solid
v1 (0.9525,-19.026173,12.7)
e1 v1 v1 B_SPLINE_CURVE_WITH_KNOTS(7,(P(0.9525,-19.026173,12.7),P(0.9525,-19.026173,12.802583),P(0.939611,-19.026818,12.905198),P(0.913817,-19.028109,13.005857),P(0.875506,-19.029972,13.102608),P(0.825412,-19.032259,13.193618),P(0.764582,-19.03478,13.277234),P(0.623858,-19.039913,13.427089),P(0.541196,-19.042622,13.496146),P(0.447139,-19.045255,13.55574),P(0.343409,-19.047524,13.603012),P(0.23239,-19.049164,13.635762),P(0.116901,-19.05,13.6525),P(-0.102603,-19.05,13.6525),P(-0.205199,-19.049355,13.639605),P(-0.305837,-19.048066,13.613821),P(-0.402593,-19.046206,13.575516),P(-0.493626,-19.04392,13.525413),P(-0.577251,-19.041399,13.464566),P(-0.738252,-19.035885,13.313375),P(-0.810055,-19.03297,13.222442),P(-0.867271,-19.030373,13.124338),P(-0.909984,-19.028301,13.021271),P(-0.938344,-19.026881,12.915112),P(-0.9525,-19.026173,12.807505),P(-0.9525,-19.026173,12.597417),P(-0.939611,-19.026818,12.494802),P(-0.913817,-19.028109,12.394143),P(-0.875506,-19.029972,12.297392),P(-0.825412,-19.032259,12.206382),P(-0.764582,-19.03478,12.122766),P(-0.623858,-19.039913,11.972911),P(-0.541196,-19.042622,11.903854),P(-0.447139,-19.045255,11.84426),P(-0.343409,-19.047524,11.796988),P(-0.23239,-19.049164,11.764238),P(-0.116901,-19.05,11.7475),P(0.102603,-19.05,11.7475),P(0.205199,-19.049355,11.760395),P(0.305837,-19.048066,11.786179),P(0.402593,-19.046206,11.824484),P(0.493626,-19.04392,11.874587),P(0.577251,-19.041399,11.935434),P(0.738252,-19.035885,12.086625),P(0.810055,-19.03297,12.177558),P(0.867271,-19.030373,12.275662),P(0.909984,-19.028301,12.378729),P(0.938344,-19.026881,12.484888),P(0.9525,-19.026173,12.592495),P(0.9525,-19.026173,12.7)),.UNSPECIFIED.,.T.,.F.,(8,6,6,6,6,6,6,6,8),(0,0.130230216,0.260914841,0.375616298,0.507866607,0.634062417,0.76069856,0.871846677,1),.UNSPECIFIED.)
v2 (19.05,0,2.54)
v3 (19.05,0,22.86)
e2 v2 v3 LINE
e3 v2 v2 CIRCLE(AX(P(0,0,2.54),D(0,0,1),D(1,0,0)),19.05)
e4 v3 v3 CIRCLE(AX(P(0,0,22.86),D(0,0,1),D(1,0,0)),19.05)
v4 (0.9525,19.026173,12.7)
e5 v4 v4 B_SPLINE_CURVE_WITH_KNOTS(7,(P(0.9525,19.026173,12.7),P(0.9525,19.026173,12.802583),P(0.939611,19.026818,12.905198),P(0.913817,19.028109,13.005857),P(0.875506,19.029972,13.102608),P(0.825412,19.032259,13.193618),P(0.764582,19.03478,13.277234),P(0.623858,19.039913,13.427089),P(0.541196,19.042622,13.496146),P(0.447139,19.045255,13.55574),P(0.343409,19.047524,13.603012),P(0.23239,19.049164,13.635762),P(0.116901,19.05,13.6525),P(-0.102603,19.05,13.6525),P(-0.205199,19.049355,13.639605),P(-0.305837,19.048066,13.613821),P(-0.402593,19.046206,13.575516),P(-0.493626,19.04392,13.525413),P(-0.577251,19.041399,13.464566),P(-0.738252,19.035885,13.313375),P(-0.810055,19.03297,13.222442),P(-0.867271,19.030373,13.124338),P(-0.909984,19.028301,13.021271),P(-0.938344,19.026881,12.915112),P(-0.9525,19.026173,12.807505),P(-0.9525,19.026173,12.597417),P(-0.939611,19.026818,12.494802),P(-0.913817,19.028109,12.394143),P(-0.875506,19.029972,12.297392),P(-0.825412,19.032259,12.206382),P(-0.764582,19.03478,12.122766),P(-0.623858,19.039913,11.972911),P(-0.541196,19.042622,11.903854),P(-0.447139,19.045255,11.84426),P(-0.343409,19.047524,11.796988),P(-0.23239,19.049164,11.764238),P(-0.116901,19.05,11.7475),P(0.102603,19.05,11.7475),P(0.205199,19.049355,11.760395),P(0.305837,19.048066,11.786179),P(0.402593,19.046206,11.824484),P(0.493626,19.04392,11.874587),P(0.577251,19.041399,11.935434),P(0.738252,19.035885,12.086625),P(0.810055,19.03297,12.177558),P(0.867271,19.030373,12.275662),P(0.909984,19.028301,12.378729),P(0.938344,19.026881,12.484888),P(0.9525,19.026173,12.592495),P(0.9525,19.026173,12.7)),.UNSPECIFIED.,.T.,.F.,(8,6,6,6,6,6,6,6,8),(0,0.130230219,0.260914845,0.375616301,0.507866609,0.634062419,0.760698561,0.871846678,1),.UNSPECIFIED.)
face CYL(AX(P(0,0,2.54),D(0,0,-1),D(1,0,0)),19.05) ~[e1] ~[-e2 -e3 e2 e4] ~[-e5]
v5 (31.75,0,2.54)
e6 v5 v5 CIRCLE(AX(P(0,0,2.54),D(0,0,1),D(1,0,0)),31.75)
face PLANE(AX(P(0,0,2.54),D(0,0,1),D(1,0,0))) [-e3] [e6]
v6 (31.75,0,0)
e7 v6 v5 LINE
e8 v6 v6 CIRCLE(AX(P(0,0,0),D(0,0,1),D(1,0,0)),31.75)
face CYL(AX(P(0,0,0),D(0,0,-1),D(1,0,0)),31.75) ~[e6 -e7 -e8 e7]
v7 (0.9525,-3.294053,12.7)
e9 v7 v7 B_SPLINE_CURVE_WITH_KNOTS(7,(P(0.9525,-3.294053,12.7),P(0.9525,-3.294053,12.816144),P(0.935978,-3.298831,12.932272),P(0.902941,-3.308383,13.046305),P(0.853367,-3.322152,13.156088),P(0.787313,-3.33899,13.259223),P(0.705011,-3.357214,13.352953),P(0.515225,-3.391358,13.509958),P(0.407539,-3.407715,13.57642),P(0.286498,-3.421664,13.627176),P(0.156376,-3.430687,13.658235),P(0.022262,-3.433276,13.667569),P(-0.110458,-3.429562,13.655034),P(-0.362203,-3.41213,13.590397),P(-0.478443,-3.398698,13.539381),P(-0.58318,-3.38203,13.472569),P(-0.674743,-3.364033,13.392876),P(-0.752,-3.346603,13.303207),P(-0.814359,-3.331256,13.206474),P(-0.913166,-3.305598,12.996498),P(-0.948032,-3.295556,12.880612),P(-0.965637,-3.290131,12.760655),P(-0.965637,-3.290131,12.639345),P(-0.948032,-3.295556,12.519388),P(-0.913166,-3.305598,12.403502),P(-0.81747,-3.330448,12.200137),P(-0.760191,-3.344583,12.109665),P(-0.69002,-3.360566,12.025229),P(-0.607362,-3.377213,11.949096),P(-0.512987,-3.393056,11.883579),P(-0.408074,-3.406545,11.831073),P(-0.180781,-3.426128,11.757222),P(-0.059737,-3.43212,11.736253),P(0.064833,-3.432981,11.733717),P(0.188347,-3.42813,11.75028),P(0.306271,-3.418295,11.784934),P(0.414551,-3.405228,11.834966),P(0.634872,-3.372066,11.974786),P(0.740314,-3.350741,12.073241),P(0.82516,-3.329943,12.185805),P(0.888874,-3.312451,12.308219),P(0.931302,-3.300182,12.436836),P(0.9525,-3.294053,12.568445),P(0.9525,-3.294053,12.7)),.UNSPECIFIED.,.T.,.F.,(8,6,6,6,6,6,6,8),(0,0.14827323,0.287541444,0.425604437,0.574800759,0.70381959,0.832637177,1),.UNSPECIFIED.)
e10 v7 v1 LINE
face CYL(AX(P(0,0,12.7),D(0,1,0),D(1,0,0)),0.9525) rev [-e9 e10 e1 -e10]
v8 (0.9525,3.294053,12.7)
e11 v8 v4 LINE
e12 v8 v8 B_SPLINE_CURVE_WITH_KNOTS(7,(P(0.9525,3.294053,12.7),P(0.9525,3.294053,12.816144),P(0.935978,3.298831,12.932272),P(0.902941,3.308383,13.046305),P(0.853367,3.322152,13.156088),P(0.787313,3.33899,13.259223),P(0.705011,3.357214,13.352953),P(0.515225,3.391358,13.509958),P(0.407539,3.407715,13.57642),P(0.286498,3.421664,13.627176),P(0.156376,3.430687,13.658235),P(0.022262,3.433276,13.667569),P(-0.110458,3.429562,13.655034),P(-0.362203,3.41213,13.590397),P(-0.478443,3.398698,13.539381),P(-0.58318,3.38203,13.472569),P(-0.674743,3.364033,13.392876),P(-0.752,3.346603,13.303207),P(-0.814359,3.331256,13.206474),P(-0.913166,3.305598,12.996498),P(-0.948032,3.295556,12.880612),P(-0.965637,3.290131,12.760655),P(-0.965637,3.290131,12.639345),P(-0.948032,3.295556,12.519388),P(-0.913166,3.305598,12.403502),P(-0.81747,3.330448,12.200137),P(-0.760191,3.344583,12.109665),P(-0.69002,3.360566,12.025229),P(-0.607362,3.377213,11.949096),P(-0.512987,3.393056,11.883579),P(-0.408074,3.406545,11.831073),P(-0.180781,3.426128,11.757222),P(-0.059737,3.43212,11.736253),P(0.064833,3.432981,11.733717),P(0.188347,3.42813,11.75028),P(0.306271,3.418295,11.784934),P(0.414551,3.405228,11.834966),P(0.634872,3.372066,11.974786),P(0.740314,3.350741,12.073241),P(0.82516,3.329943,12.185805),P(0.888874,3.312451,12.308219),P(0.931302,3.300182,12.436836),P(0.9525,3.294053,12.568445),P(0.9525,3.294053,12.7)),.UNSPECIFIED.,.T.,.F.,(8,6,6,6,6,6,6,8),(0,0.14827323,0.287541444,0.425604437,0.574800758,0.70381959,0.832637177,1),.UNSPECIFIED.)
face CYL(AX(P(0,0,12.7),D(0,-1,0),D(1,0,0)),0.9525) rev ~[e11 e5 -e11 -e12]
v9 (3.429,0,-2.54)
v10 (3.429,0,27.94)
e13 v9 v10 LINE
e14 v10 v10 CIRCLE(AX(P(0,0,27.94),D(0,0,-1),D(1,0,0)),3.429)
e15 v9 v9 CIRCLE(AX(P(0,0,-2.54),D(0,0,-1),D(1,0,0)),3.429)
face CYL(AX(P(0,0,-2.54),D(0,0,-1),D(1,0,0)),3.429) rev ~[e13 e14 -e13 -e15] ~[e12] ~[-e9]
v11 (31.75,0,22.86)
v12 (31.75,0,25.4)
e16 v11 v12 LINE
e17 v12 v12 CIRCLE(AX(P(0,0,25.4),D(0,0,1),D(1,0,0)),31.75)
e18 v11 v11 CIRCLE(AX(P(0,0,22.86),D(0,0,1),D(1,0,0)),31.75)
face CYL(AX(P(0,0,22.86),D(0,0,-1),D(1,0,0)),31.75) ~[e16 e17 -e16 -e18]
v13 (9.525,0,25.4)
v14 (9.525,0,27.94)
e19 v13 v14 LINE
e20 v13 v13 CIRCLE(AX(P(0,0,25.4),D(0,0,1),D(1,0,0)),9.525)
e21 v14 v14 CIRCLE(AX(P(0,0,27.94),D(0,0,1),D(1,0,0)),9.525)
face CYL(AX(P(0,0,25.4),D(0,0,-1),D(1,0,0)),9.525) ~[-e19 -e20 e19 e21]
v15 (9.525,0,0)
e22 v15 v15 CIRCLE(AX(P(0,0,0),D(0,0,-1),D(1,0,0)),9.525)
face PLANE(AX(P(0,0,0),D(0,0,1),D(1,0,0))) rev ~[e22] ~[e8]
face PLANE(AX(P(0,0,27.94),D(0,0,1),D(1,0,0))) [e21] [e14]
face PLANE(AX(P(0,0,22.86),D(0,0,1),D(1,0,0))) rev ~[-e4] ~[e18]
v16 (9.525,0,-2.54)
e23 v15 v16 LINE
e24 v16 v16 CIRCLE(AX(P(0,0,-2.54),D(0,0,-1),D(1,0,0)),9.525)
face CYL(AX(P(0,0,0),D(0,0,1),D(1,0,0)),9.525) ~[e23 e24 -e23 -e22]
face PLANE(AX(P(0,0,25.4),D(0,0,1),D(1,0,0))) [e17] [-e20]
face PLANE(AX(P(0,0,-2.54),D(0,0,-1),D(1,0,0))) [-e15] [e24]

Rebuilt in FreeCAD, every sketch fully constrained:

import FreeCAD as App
import Part
import Sketcher

V = App.Vector
Q = App.Units.Quantity

doc = App.newDocument("Part")
body = doc.addObject("PartDesign::Body", "Body")

# Sketch on XY plane
sketch1 = body.newObject("Sketcher::SketchObject", "Sketch")
sketch1.AttachmentSupport = (doc.getObject("XY_Plane"), [""])
sketch1.MapMode = "FlatFace"
sketch1.addGeometry(Part.Circle(V(0, 0, 0), V(0, 0, 1), 32), False)
sketch1.addConstraint(Sketcher.Constraint("Coincident", 0, 3, -1, 1))
sketch1.addConstraint(Sketcher.Constraint("Diameter", 0, Q("2.5 in")))
pad1 = body.newObject("PartDesign::Pad", "Pad")
pad1.Profile = sketch1
pad1.Length = Q("0.1 in")

# Sketch on XY plane
sketch2 = body.newObject("Sketcher::SketchObject", "Sketch001")
sketch2.AttachmentSupport = (doc.getObject("XY_Plane"), [""])
sketch2.MapMode = "FlatFace"
sketch2.AttachmentOffset = App.Placement(V(0, 0, 0.1 * 25.4), App.Rotation())
sketch2.addGeometry(Part.Circle(V(0, 0, 0), V(0, 0, 1), 19), False)
sketch2.addConstraint(Sketcher.Constraint("Coincident", 0, 3, -1, 1))
sketch2.addConstraint(Sketcher.Constraint("Diameter", 0, Q("1.5 in")))
pad2 = body.newObject("PartDesign::Pad", "Pad001")
pad2.Profile = sketch2
pad2.Length = Q("0.8 in")

# Sketch on XY plane
sketch3 = body.newObject("Sketcher::SketchObject", "Sketch002")
sketch3.AttachmentSupport = (doc.getObject("XY_Plane"), [""])
sketch3.MapMode = "FlatFace"
sketch3.AttachmentOffset = App.Placement(V(0, 0, 0.9 * 25.4), App.Rotation())
sketch3.addGeometry(Part.Circle(V(0, 0, 0), V(0, 0, 1), 32), False)
sketch3.addConstraint(Sketcher.Constraint("Coincident", 0, 3, -1, 1))
sketch3.addConstraint(Sketcher.Constraint("Diameter", 0, Q("2.5 in")))
pad3 = body.newObject("PartDesign::Pad", "Pad002")
pad3.Profile = sketch3
pad3.Length = Q("0.1 in")

# Sketch on XY plane
sketch4 = body.newObject("Sketcher::SketchObject", "Sketch003")
sketch4.AttachmentSupport = (doc.getObject("XY_Plane"), [""])
sketch4.MapMode = "FlatFace"
sketch4.AttachmentOffset = App.Placement(V(0, 0, 1 * 25.4), App.Rotation())
sketch4.addGeometry(Part.Circle(V(0, 0, 0), V(0, 0, 1), 10), False)
sketch4.addConstraint(Sketcher.Constraint("Coincident", 0, 3, -1, 1))
sketch4.addConstraint(Sketcher.Constraint("Diameter", 0, Q("0.75 in")))
pad4 = body.newObject("PartDesign::Pad", "Pad003")
pad4.Profile = sketch4
pad4.Length = Q("0.1 in")

# Sketch on XY plane
sketch5 = body.newObject("Sketcher::SketchObject", "Sketch004")
sketch5.AttachmentSupport = (doc.getObject("XY_Plane"), [""])
sketch5.MapMode = "FlatFace"
sketch5.addGeometry(Part.Circle(V(0, 0, 0), V(0, 0, 1), 10), False)
sketch5.addConstraint(Sketcher.Constraint("Coincident", 0, 3, -1, 1))
sketch5.addConstraint(Sketcher.Constraint("Diameter", 0, Q("0.75 in")))
pad5 = body.newObject("PartDesign::Pad", "Pad004")
pad5.Profile = sketch5
pad5.Length = Q("0.1 in")
pad5.Reversed = True

# Sketch on XY plane
sketch6 = body.newObject("Sketcher::SketchObject", "Sketch005")
sketch6.AttachmentSupport = (doc.getObject("XY_Plane"), [""])
sketch6.MapMode = "FlatFace"
sketch6.AttachmentOffset = App.Placement(V(0, 0, -0.1 * 25.4), App.Rotation())
sketch6.addGeometry(Part.Circle(V(0, 0, 0), V(0, 0, 1), 3.4), False)
sketch6.addConstraint(Sketcher.Constraint("Coincident", 0, 3, -1, 1))
sketch6.addConstraint(Sketcher.Constraint("Diameter", 0, Q("0.27 in")))
pocket1 = body.newObject("PartDesign::Pocket", "Pocket")
pocket1.Profile = sketch6
pocket1.Length = Q("1.2 in")
pocket1.Reversed = True

# Sketch on XZ plane
sketch7 = body.newObject("Sketcher::SketchObject", "Sketch006")
sketch7.AttachmentSupport = (doc.getObject("XZ_Plane"), [""])
sketch7.MapMode = "FlatFace"
sketch7.addGeometry(Part.Circle(V(0, 12.7, 0), V(0, 0, 1), 1), False)
sketch7.addConstraint(Sketcher.Constraint("PointOnObject", 0, 3, -2))
sketch7.addConstraint(Sketcher.Constraint("Diameter", 0, Q("0.075 in")))
sketch7.addConstraint(Sketcher.Constraint("DistanceY", -1, 1, 0, 3, Q("0.5 in")))
pocket2 = body.newObject("PartDesign::Pocket", "Pocket001")
pocket2.Profile = sketch7
pocket2.Type = "ThroughAll"
pocket2.Midplane = True

doc.recompute()
